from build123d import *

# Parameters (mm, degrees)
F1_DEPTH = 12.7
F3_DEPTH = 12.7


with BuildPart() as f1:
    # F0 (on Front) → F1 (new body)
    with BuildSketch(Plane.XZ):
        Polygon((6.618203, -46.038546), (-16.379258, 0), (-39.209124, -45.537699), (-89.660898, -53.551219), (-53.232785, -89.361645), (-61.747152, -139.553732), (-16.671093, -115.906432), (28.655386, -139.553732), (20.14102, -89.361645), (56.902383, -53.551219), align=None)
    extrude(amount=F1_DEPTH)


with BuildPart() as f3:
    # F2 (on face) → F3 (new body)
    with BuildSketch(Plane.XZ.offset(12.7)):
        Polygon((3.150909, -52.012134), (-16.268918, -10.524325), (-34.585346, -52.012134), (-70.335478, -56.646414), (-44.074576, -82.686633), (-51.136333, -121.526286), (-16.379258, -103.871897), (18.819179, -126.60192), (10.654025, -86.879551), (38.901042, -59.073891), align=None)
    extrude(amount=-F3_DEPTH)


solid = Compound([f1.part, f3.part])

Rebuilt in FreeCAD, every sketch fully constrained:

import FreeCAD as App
import Part
import Sketcher

V = App.Vector
Q = App.Units.Quantity

doc = App.newDocument("Part")
body = doc.addObject("PartDesign::Body", "Body")

sketch1 = doc.addObject("Sketcher::SketchObject", "Sketch")
body.addObject(sketch1)
sketch1.AttachmentSupport = (doc.XZ_Plane, [""])
sketch1.MapMode = "FlatFace"
sketch1.addGeometry([
    Part.LineSegment(V(6.618203, -46.038546, 0), V(-16.379258, 0, 0)),
    Part.LineSegment(V(-16.379258, 0, 0), V(-39.209124, -45.537699, 0)),
    Part.LineSegment(V(-39.209124, -45.537699, 0), V(-89.660898, -53.551219, 0)),
    Part.LineSegment(V(-89.660898, -53.551219, 0), V(-53.232785, -89.361645, 0)),
    Part.LineSegment(V(-53.232785, -89.361645, 0), V(-61.747152, -139.553732, 0)),
    Part.LineSegment(V(-61.747152, -139.553732, 0), V(-16.671093, -115.906432, 0)),
    Part.LineSegment(V(-16.671093, -115.906432, 0), V(28.655386, -139.553732, 0)),
    Part.LineSegment(V(28.655386, -139.553732, 0), V(20.14102, -89.361645, 0)),
    Part.LineSegment(V(20.14102, -89.361645, 0), V(56.902383, -53.551219, 0)),
    Part.LineSegment(V(56.902383, -53.551219, 0), V(6.618203, -46.038546, 0)),
], False)
sketch1.addConstraint([
    Sketcher.Constraint("Coincident", 0, 2, 1, 1),
    Sketcher.Constraint("Coincident", 1, 2, 2, 1),
    Sketcher.Constraint("Coincident", 2, 2, 3, 1),
    Sketcher.Constraint("Coincident", 3, 2, 4, 1),
    Sketcher.Constraint("Coincident", 4, 2, 5, 1),
    Sketcher.Constraint("Coincident", 5, 2, 6, 1),
    Sketcher.Constraint("Coincident", 6, 2, 7, 1),
    Sketcher.Constraint("Coincident", 7, 2, 8, 1),
    Sketcher.Constraint("Coincident", 8, 2, 9, 1),
    Sketcher.Constraint("Coincident", 9, 2, 0, 1),
    Sketcher.Constraint("PointOnObject", 0, 2, -1),
    Sketcher.Constraint("Horizontal", 4, 2, 6, 2),
    Sketcher.Constraint("Horizontal", 3, 2, 7, 2),
    Sketcher.Constraint("Horizontal", 2, 2, 8, 2),
    Sketcher.Constraint("Equal", 4, 7),
    Sketcher.Constraint("DistanceY", 1, 2, -1, 1, Q("45.537699 mm")),
    Sketcher.Constraint("DistanceX", 2, 2, -1, 1, Q("89.660898 mm")),
    Sketcher.Constraint("DistanceY", 4, 2, 5, 2, Q("23.6473 mm")),
    Sketcher.Constraint("DistanceY", 7, 2, 9, 2, Q("43.323099 mm")),
    Sketcher.Constraint("Distance", 0, Q("51.462908 mm")),
    Sketcher.Constraint("Distance", 1, Q("50.940012 mm")),
    Sketcher.Constraint("Distance", 3, Q("51.082228 mm")),
    Sketcher.Constraint("Distance", 8, Q("51.320409 mm")),
    Sketcher.Constraint("DistanceX", 0, 2, -1, 1, Q("16.379258 mm")),
    Sketcher.Constraint("DistanceY", 2, 2, -1, 1, Q("53.551219 mm")),
    Sketcher.Constraint("DistanceY", 4, 2, -1, 1, Q("139.553732 mm")),
    Sketcher.Constraint("DistanceX", -1, 1, 7, 2, Q("20.14102 mm")),
    Sketcher.Constraint("DistanceX", 3, 2, 1, 2, Q("14.023661 mm")),
    Sketcher.Constraint("DistanceX", 4, 2, 5, 2, Q("45.076059 mm")),
    Sketcher.Constraint("DistanceX", 1, 2, 5, 2, Q("22.538031 mm")),
])
pad1 = doc.addObject("PartDesign::Pad", "Pad")
body.addObject(pad1)
pad1.Profile = sketch1
pad1.Length = Q("0.5 in")
body2 = doc.addObject("PartDesign::Body", "Body001")

sketch2 = doc.addObject("Sketcher::SketchObject", "Sketch001")
body2.addObject(sketch2)
sketch2.AttachmentSupport = (doc.getObject("XZ_Plane001"), [""])
sketch2.MapMode = "FlatFace"
sketch2.AttachmentOffset = App.Placement(V(0, 0, 0.5 * 25.4), App.Rotation())
sketch2.addGeometry([
    Part.LineSegment(V(3.150909, -52.012134, 0), V(-16.268918, -10.524325, 0)),
    Part.LineSegment(V(-16.268918, -10.524325, 0), V(-34.585346, -52.012134, 0)),
    Part.LineSegment(V(-34.585346, -52.012134, 0), V(-70.335478, -56.646414, 0)),
    Part.LineSegment(V(-70.335478, -56.646414, 0), V(-44.074576, -82.686633, 0)),
    Part.LineSegment(V(-44.074576, -82.686633, 0), V(-51.136333, -121.526286, 0)),
    Part.LineSegment(V(-51.136333, -121.526286, 0), V(-16.379258, -103.871897, 0)),
    Part.LineSegment(V(-16.379258, -103.871897, 0), V(18.819179, -126.60192, 0)),
    Part.LineSegment(V(18.819179, -126.60192, 0), V(10.654025, -86.879551, 0)),
    Part.LineSegment(V(10.654025, -86.879551, 0), V(38.901042, -59.073891, 0)),
    Part.LineSegment(V(38.901042, -59.073891, 0), V(3.150909, -52.012134, 0)),
], False)
sketch2.addConstraint([
    Sketcher.Constraint("Coincident", 0, 2, 1, 1),
    Sketcher.Constraint("Coincident", 1, 2, 2, 1),
    Sketcher.Constraint("Coincident", 2, 2, 3, 1),
    Sketcher.Constraint("Coincident", 3, 2, 4, 1),
    Sketcher.Constraint("Coincident", 4, 2, 5, 1),
    Sketcher.Constraint("Coincident", 5, 2, 6, 1),
    Sketcher.Constraint("Coincident", 6, 2, 7, 1),
    Sketcher.Constraint("Coincident", 7, 2, 8, 1),
    Sketcher.Constraint("Coincident", 8, 2, 9, 1),
    Sketcher.Constraint("Coincident", 9, 2, 0, 1),
    Sketcher.Constraint("Horizontal", 1, 2, 9, 2),
    Sketcher.Constraint("DistanceY", 3, 2, 1, 2, Q("30.674499 mm")),
    Sketcher.Constraint("DistanceX", 2, 2, 3, 2, Q("26.260902 mm")),
    Sketcher.Constraint("DistanceX", 3, 2, 7, 2, Q("54.728601 mm")),
    Sketcher.Constraint("DistanceX", 5, 2, 8, 2, Q("55.2803 mm")),
    Sketcher.Constraint("Distance", 2, Q("36.049251 mm")),
    Sketcher.Constraint("Distance", 4, Q("39.476411 mm")),
    Sketcher.Constraint("Distance", 6, Q("41.899689 mm")),
    Sketcher.Constraint("DistanceX", 5, 2, -1, 1, Q("16.379258 mm")),
    Sketcher.Constraint("DistanceX", -1, 1, 6, 2, Q("18.819179 mm")),
    Sketcher.Constraint("DistanceY", 6, 2, -1, 1, Q("126.60192 mm")),
    Sketcher.Constraint("DistanceY", 7, 2, -1, 1, Q("86.879551 mm")),
    Sketcher.Constraint("DistanceY", 8, 2, -1, 1, Q("59.073891 mm")),
    Sketcher.Constraint("DistanceX", -1, 1, 9, 2, Q("3.150909 mm")),
    Sketcher.Constraint("DistanceX", 1, 2, 0, 2, Q("18.316428 mm")),
    Sketcher.Constraint("DistanceY", 1, 2, 0, 2, Q("41.487809 mm")),
    Sketcher.Constraint("DistanceX", 2, 2, 1, 2, Q("35.750132 mm")),
    Sketcher.Constraint("DistanceY", 4, 2, 1, 2, Q("69.514152 mm")),
    Sketcher.Constraint("DistanceX", 3, 2, 5, 2, Q("27.695318 mm")),
    Sketcher.Constraint("DistanceY", 4, 2, 5, 2, Q("17.654389 mm")),
])
pad2 = doc.addObject("PartDesign::Pad", "Pad001")
body2.addObject(pad2)
pad2.Profile = sketch2
pad2.Length = Q("0.5 in")
pad2.Reversed = True

doc.recompute()
